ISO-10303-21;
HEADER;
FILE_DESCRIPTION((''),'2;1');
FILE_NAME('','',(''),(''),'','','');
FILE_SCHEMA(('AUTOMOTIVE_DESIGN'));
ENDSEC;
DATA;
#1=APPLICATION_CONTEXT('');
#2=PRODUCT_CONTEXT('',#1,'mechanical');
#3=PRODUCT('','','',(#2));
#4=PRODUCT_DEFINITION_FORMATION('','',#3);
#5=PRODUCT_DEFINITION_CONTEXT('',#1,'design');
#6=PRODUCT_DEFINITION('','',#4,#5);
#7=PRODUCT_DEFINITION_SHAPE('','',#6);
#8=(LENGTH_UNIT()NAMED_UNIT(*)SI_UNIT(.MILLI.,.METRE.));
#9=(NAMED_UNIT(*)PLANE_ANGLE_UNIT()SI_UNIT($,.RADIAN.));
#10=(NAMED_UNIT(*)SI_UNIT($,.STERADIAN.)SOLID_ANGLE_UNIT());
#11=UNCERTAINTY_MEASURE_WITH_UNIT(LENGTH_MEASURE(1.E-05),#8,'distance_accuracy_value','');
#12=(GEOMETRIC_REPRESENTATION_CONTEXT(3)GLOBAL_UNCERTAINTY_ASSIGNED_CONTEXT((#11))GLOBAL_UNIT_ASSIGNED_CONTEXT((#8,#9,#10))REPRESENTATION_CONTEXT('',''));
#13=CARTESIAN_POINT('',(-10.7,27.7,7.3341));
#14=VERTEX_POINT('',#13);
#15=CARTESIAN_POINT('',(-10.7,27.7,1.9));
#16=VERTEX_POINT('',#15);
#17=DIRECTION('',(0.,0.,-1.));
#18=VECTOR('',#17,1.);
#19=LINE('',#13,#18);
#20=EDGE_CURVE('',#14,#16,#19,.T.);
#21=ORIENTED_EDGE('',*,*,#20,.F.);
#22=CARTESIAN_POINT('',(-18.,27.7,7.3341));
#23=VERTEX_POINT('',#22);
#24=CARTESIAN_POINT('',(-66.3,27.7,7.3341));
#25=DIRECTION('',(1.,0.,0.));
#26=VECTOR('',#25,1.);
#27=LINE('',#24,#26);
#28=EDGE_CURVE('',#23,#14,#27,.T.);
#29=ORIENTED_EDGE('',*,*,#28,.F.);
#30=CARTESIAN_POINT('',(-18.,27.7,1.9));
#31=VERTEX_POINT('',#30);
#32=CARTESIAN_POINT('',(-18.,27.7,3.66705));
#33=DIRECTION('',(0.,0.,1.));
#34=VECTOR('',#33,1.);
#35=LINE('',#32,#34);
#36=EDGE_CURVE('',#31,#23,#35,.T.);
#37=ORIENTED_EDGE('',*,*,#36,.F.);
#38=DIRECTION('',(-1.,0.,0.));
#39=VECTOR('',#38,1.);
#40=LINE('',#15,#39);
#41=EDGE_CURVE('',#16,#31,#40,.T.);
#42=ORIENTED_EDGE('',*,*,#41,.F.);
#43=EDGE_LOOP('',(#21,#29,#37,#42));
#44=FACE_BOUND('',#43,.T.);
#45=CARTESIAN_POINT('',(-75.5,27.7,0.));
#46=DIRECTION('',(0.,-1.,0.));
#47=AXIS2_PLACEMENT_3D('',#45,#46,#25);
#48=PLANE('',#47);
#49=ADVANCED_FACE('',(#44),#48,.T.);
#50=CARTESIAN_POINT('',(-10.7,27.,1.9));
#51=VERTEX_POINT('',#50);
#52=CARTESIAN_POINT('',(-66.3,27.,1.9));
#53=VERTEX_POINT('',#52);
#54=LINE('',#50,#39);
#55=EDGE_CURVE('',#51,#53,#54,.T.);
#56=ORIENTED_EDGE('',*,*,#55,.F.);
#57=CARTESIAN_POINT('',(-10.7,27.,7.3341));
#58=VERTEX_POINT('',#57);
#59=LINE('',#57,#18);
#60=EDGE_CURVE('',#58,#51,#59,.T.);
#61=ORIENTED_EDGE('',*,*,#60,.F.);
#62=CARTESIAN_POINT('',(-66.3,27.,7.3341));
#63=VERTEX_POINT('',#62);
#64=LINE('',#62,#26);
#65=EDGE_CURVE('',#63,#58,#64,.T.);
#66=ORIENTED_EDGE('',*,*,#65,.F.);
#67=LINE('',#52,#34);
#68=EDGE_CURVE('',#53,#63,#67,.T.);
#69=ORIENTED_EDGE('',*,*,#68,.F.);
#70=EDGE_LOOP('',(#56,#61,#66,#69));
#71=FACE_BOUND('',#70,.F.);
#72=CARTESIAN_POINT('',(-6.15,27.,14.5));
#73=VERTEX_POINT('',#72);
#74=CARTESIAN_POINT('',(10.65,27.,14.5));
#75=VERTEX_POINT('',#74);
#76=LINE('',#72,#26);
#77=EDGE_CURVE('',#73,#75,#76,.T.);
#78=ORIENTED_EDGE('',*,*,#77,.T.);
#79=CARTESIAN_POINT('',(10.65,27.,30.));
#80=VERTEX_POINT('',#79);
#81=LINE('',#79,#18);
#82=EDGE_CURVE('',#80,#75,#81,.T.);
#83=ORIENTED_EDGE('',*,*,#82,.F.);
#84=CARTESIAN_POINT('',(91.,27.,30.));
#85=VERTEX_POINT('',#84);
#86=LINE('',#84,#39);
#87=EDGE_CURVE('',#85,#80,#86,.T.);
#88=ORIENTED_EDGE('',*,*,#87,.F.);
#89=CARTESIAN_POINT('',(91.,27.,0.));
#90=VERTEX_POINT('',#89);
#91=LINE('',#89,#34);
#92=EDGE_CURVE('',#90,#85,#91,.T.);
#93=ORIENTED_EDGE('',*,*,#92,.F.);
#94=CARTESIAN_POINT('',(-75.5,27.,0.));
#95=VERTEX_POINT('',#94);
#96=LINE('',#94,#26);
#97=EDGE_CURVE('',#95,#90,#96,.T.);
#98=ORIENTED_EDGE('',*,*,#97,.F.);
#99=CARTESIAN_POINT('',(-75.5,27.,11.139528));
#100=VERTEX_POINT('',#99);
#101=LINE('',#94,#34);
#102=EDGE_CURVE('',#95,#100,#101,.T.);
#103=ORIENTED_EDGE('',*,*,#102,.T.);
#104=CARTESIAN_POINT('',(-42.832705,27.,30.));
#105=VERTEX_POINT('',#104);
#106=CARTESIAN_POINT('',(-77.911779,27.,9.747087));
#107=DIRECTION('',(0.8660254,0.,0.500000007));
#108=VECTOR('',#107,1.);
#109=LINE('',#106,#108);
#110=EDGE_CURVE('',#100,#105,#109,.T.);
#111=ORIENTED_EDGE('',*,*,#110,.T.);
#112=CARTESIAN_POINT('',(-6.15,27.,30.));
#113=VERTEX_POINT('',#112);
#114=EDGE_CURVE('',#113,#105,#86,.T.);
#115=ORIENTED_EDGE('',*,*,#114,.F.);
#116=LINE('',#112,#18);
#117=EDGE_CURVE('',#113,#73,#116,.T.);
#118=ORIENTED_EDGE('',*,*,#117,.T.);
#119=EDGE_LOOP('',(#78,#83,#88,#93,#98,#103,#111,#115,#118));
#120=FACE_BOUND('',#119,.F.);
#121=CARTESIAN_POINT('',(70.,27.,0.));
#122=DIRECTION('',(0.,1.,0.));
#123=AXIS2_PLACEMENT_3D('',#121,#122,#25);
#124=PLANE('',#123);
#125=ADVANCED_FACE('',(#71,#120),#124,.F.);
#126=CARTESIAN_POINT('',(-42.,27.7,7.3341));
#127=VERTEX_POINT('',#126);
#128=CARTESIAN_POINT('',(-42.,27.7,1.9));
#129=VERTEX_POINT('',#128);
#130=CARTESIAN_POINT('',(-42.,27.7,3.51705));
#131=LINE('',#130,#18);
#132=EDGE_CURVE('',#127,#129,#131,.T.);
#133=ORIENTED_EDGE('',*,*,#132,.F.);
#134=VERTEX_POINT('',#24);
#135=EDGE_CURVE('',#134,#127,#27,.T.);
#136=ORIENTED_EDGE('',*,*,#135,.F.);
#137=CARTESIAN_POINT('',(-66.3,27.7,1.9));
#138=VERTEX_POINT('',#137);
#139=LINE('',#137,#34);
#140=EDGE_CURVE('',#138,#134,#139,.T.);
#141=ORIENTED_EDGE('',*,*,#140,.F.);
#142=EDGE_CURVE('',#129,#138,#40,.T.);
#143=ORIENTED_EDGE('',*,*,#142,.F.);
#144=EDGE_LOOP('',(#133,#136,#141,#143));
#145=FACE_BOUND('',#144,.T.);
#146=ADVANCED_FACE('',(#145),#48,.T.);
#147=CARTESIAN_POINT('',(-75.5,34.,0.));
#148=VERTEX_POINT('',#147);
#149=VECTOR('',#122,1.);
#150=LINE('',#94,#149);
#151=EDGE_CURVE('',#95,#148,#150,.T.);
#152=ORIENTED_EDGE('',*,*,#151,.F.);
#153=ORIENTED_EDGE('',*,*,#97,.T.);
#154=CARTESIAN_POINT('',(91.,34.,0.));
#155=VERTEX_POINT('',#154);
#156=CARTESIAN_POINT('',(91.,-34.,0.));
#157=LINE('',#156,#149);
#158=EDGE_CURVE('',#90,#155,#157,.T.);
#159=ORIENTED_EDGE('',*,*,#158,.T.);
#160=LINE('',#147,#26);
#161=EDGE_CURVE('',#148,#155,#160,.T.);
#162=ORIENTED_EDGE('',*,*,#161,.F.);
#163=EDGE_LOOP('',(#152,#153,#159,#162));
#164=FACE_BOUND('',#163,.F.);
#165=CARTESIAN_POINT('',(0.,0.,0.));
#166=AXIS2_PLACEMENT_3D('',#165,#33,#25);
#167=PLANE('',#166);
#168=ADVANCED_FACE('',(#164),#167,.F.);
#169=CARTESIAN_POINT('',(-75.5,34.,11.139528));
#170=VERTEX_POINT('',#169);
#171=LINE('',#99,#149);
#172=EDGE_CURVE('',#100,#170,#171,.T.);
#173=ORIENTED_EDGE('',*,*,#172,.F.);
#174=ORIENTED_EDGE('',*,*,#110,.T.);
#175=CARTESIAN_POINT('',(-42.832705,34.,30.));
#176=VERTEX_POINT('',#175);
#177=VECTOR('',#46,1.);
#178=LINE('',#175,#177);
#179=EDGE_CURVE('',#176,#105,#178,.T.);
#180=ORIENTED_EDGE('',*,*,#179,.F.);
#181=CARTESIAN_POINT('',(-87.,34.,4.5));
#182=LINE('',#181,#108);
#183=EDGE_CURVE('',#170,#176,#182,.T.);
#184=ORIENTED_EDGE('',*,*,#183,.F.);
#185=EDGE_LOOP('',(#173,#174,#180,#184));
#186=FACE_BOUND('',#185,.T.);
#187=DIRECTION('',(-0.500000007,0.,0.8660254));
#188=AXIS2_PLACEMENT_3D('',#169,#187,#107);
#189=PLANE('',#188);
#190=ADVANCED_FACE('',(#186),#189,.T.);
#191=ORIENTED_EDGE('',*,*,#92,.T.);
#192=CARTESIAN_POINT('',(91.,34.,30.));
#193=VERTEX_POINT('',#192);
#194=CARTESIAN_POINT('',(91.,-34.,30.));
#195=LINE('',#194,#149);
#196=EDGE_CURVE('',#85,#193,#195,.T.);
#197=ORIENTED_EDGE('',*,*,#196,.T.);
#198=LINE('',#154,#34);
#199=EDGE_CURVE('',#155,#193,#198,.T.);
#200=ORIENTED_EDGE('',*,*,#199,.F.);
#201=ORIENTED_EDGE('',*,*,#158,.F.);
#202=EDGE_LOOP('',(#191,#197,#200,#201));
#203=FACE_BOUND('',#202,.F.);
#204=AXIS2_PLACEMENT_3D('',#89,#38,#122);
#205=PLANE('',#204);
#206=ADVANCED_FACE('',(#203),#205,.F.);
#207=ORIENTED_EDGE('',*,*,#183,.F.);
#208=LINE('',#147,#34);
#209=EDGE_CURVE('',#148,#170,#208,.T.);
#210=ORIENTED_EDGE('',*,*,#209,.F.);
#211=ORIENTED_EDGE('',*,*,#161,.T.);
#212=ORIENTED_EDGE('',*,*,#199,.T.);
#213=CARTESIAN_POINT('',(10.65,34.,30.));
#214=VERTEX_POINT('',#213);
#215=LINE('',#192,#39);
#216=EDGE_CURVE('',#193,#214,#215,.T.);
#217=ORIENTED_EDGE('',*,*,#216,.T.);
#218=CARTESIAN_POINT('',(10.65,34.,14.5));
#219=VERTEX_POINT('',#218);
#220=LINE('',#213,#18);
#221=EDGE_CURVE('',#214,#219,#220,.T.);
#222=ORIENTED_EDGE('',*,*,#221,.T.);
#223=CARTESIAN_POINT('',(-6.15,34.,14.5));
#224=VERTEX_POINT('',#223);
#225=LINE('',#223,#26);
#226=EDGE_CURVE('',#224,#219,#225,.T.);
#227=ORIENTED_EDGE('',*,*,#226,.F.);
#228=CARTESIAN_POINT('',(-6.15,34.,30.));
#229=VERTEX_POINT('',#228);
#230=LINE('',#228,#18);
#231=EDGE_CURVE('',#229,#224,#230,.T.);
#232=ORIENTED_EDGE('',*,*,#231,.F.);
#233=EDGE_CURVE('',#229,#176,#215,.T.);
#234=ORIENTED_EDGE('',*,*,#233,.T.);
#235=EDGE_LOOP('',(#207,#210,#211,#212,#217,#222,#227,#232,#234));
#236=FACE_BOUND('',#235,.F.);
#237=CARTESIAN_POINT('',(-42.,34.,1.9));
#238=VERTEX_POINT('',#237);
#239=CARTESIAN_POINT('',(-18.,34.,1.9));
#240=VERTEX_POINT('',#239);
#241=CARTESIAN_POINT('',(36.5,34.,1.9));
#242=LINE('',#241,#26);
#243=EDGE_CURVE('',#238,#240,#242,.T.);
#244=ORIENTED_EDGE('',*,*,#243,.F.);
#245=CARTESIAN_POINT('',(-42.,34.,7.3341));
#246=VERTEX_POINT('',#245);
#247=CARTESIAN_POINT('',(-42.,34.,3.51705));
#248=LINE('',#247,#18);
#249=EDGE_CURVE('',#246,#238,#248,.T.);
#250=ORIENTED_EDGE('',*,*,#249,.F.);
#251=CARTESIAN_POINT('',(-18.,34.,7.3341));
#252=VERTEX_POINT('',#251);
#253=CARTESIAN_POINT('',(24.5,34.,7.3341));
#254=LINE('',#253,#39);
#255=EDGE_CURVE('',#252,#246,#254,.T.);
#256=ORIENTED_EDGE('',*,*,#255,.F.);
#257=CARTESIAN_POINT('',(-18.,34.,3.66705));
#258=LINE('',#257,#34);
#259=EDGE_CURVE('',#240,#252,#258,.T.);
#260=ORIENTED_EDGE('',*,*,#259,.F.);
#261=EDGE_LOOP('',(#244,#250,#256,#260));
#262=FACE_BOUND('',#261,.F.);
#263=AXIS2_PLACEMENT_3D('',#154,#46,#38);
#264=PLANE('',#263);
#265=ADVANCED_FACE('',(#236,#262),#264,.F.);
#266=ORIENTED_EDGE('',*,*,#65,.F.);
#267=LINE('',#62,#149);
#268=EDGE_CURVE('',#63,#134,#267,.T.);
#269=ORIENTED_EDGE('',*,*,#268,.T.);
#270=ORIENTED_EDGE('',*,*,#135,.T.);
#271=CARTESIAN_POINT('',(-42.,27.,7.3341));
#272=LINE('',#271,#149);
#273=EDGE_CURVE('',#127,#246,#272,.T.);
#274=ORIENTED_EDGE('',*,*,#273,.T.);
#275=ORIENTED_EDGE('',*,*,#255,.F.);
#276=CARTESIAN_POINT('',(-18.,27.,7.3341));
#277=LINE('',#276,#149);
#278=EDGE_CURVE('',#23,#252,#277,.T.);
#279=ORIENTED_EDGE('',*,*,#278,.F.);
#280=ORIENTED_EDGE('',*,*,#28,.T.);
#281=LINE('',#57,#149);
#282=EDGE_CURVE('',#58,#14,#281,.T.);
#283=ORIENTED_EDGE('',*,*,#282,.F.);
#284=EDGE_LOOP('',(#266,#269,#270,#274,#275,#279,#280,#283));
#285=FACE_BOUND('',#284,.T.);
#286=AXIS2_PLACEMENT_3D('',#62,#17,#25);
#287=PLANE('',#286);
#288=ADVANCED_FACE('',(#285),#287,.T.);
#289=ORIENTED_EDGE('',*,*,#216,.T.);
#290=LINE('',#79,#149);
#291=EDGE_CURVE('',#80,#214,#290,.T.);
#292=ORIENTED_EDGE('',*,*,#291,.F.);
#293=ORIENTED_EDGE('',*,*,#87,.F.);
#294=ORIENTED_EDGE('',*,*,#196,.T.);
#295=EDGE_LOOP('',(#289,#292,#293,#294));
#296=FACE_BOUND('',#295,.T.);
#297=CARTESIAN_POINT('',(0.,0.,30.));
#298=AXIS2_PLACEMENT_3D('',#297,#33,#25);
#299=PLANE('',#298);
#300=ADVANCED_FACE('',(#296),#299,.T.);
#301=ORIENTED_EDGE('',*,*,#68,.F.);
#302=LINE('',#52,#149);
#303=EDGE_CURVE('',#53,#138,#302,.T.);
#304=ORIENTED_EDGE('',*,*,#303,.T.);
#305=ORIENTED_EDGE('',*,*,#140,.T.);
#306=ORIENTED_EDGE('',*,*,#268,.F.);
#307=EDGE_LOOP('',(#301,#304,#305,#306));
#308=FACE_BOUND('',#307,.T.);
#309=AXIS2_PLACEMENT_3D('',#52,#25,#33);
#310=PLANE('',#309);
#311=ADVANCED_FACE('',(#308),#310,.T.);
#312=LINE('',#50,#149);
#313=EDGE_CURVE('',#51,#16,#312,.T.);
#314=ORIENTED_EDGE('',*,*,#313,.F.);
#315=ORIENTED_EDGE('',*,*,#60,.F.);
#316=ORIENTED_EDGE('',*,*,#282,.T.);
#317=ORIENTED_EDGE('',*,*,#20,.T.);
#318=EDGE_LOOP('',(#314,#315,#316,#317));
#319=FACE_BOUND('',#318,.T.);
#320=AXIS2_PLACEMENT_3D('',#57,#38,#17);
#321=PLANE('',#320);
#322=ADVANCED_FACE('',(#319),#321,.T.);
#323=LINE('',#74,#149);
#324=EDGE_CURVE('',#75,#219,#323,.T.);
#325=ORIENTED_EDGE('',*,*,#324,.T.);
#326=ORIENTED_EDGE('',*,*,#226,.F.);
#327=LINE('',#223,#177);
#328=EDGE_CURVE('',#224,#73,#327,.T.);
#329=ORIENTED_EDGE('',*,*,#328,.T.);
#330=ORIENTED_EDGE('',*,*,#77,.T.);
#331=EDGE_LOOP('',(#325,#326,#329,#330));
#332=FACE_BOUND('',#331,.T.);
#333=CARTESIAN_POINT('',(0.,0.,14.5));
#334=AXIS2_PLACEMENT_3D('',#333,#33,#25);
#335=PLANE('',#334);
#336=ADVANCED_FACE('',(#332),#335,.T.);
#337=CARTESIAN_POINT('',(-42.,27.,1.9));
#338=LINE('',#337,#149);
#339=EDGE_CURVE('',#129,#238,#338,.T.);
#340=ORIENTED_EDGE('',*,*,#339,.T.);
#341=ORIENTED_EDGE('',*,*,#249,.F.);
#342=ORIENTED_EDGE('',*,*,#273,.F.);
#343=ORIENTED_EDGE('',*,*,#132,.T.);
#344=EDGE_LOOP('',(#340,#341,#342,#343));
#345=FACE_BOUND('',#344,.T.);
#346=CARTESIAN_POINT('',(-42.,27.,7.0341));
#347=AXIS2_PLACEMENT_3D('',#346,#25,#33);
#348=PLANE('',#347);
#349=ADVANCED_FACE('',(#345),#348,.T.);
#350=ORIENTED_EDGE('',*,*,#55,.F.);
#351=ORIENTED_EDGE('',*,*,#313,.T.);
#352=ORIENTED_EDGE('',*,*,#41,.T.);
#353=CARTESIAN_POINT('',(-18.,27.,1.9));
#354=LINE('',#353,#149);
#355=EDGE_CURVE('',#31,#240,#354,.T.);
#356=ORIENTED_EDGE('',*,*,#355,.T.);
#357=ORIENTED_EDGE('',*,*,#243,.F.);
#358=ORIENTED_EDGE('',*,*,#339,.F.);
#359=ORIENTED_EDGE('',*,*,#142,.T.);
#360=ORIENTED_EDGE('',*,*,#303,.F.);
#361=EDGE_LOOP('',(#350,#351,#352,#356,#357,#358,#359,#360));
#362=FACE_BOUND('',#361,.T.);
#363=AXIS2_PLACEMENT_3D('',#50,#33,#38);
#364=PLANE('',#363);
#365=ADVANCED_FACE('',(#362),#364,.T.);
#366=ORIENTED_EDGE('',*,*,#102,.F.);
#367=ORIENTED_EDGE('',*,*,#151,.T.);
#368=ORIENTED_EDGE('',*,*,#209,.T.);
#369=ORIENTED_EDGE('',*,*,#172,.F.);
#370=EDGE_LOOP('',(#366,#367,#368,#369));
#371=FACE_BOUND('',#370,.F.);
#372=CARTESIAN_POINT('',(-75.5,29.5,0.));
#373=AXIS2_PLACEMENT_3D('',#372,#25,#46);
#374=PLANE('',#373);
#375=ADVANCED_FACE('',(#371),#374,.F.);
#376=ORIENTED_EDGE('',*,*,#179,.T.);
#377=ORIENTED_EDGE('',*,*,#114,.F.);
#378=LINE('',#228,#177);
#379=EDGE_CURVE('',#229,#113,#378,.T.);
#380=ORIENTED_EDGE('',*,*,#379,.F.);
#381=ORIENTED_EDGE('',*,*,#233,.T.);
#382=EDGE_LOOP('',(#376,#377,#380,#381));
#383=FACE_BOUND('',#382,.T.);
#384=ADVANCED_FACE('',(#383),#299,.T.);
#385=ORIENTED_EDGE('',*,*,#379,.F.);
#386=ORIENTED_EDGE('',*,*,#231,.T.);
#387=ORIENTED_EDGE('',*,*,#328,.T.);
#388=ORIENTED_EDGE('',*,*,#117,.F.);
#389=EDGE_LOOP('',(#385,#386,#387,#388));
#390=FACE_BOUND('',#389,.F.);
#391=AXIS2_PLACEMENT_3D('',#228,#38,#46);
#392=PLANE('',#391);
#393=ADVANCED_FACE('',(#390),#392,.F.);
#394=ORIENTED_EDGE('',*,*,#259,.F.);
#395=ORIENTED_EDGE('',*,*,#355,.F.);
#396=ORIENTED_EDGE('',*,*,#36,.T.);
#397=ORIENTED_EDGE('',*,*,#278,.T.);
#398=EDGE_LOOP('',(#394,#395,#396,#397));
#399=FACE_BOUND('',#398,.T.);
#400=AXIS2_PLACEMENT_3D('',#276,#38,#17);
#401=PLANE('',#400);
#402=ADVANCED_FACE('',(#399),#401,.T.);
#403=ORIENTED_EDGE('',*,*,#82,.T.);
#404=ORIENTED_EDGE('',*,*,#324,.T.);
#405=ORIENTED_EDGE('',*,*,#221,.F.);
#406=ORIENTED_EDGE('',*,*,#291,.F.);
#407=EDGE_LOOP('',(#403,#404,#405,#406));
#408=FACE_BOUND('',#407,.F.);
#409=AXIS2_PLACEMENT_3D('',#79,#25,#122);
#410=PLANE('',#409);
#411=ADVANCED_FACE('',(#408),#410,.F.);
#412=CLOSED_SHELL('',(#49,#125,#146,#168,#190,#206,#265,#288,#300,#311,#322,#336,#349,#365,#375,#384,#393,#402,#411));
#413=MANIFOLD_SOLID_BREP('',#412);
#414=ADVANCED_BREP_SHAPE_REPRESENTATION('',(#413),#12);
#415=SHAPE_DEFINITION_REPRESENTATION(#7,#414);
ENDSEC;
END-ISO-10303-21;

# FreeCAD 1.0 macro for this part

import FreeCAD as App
import Part
import Sketcher
from FreeCAD import Vector
Q = App.Units.Quantity

doc = App.newDocument("Part")
body = doc.addObject("PartDesign::Body", "Body")

# Sketch on XY plane
sketch1 = doc.addObject("Sketcher::SketchObject", "Sketch")
body.addObject(sketch1)
sketch1.AttachmentSupport = (doc.XY_Plane, [""])
sketch1.MapMode = "FlatFace"
sketch1.addGeometry([
    Part.LineSegment(Vector(-75.5, 27, 0), Vector(91, 27, 0)),
    Part.LineSegment(Vector(91, 27, 0), Vector(91, 34, 0)),
    Part.LineSegment(Vector(91, 34, 0), Vector(-75.5, 34, 0)),
    Part.LineSegment(Vector(-75.5, 34, 0), Vector(-75.5, 27, 0)),
], False)
sketch1.addConstraint([
    Sketcher.Constraint("Coincident", 0, 2, 1, 1),
    Sketcher.Constraint("Coincident", 1, 2, 2, 1),
    Sketcher.Constraint("Coincident", 2, 2, 3, 1),
    Sketcher.Constraint("Coincident", 3, 2, 0, 1),
    Sketcher.Constraint("Horizontal", 0),
    Sketcher.Constraint("Vertical", 1),
    Sketcher.Constraint("Horizontal", 2),
    Sketcher.Constraint("Vertical", 3),
    Sketcher.Constraint("DistanceY", 1, 1, 1, 2, 7.0),
    Sketcher.Constraint("DistanceX", 0, 1, 0, 2, 166.5),
    Sketcher.Constraint("DistanceX", -1, 1, 0, 2, 91.0),
    Sketcher.Constraint("DistanceY", -1, 1, 0, 2, 27.0),
])
pad1 = doc.addObject("PartDesign::Pad", "Pad")
body.addObject(pad1)
pad1.Profile = sketch1
pad1.Length = 30

# Sketch on XZ plane
sketch2 = doc.addObject("Sketcher::SketchObject", "Sketch001")
body.addObject(sketch2)
sketch2.AttachmentSupport = (doc.XZ_Plane, [""])
sketch2.MapMode = "FlatFace"
sketch2.AttachmentOffset = App.Placement(Vector(0, 0, -34), App.Rotation())
sketch2.addGeometry([
    Part.LineSegment(Vector(-42.832705, 30, 0), Vector(-75.5, 11.139528, 0)),
    Part.LineSegment(Vector(-75.5, 11.139528, 0), Vector(-75.5, 30, 0)),
    Part.LineSegment(Vector(-75.5, 30, 0), Vector(-42.832705, 30, 0)),
], False)
sketch2.addConstraint([
    Sketcher.Constraint("Coincident", 0, 2, 1, 1),
    Sketcher.Constraint("Coincident", 1, 2, 2, 1),
    Sketcher.Constraint("Coincident", 2, 2, 0, 1),
    Sketcher.Constraint("Vertical", 1),
    Sketcher.Constraint("Horizontal", 2),
    Sketcher.Constraint("DistanceY", -1, 1, 1, 2, 30.0),
    Sketcher.Constraint("Angle", 0, Q("-150 deg")),
    Sketcher.Constraint("DistanceX", 0, 2, -1, 1, 75.5),
    Sketcher.Constraint("Distance", 0, 37.721),
])
pocket1 = doc.addObject("PartDesign::Pocket", "Pocket")
body.addObject(pocket1)
pocket1.Profile = sketch2
pocket1.Length = 30
pocket1.Reversed = True

# Sketch on XZ plane
sketch3 = doc.addObject("Sketcher::SketchObject", "Sketch002")
body.addObject(sketch3)
sketch3.AttachmentSupport = (doc.XZ_Plane, [""])
sketch3.MapMode = "FlatFace"
sketch3.AttachmentOffset = App.Placement(Vector(0, 0, -27), App.Rotation())
sketch3.addGeometry([
    Part.LineSegment(Vector(-10.7, 7.3341, 0), Vector(-66.3, 7.3341, 0)),
    Part.LineSegment(Vector(-66.3, 7.3341, 0), Vector(-66.3, 1.9, 0)),
    Part.LineSegment(Vector(-66.3, 1.9, 0), Vector(-10.7, 1.9, 0)),
    Part.LineSegment(Vector(-10.7, 1.9, 0), Vector(-10.7, 7.3341, 0)),
], False)
sketch3.addConstraint([
    Sketcher.Constraint("Coincident", 0, 2, 1, 1),
    Sketcher.Constraint("Coincident", 1, 2, 2, 1),
    Sketcher.Constraint("Coincident", 2, 2, 3, 1),
    Sketcher.Constraint("Coincident", 3, 2, 0, 1),
    Sketcher.Constraint("Horizontal", 0),
    Sketcher.Constraint("Vertical", 1),
    Sketcher.Constraint("Horizontal", 2),
    Sketcher.Constraint("Vertical", 3),
    Sketcher.Constraint("DistanceX", 0, 2, 0, 1, 55.6),
    Sketcher.Constraint("DistanceX", 0, 2, -1, 1, 66.3),
    Sketcher.Constraint("DistanceY", -1, 1, 1, 2, 1.9),
    Sketcher.Constraint("DistanceY", 1, 2, 1, 1, 5.434),
])
pocket2 = doc.addObject("PartDesign::Pocket", "Pocket001")
body.addObject(pocket2)
pocket2.Profile = sketch3
pocket2.Length = 0.7

# Sketch on XZ plane
sketch4 = doc.addObject("Sketcher::SketchObject", "Sketch003")
body.addObject(sketch4)
sketch4.AttachmentSupport = (doc.XZ_Plane, [""])
sketch4.MapMode = "FlatFace"
sketch4.AttachmentOffset = App.Placement(Vector(0, 0, -27), App.Rotation())
sketch4.addGeometry([
    Part.LineSegment(Vector(-42, 7.3341, 0), Vector(-42, 1.9, 0)),
    Part.LineSegment(Vector(-42, 1.9, 0), Vector(-18, 1.9, 0)),
    Part.LineSegment(Vector(-18, 1.9, 0), Vector(-18, 7.3341, 0)),
    Part.LineSegment(Vector(-18, 7.3341, 0), Vector(-42, 7.3341, 0)),
], False)
sketch4.addConstraint([
    Sketcher.Constraint("Coincident", 0, 2, 1, 1),
    Sketcher.Constraint("Coincident", 1, 2, 2, 1),
    Sketcher.Constraint("Coincident", 2, 2, 3, 1),
    Sketcher.Constraint("Coincident", 3, 2, 0, 1),
    Sketcher.Constraint("Vertical", 0),
    Sketcher.Constraint("Horizontal", 1),
    Sketcher.Constraint("Vertical", 2),
    Sketcher.Constraint("Horizontal", 3),
    Sketcher.Constraint("DistanceX", 1, 1, 1, 2, 24.0),
    Sketcher.Constraint("DistanceX", 0, 2, -1, 1, 42.0),
    Sketcher.Constraint("DistanceY", -1, 1, 0, 2, 1.9),
    Sketcher.Constraint("DistanceY", 0, 2, 0, 1, 5.434),
])
pocket3 = doc.addObject("PartDesign::Pocket", "Pocket002")
body.addObject(pocket3)
pocket3.Profile = sketch4
pocket3.Length = 7

# Sketch on XY plane
sketch5 = doc.addObject("Sketcher::SketchObject", "Sketch004")
body.addObject(sketch5)
sketch5.AttachmentSupport = (doc.XY_Plane, [""])
sketch5.MapMode = "FlatFace"
sketch5.AttachmentOffset = App.Placement(Vector(0, 0, 30), App.Rotation())
sketch5.addGeometry([
    Part.LineSegment(Vector(10.65, 27, 0), Vector(10.65, 34, 0)),
    Part.LineSegment(Vector(10.65, 34, 0), Vector(-6.15, 34, 0)),
    Part.LineSegment(Vector(-6.15, 34, 0), Vector(-6.15, 27, 0)),
    Part.LineSegment(Vector(-6.15, 27, 0), Vector(10.65, 27, 0)),
], False)
sketch5.addConstraint([
    Sketcher.Constraint("Coincident", 0, 2, 1, 1),
    Sketcher.Constraint("Coincident", 1, 2, 2, 1),
    Sketcher.Constraint("Coincident", 2, 2, 3, 1),
    Sketcher.Constraint("Coincident", 3, 2, 0, 1),
    Sketcher.Constraint("Vertical", 0),
    Sketcher.Constraint("Horizontal", 1),
    Sketcher.Constraint("Vertical", 2),
    Sketcher.Constraint("Horizontal", 3),
    Sketcher.Constraint("DistanceY", 0, 1, 0, 2, 7.0),
    Sketcher.Constraint("DistanceX", 1, 2, 1, 1, 16.8),
    Sketcher.Constraint("DistanceY", -1, 1, 0, 2, 34.0),
    Sketcher.Constraint("DistanceX", -1, 1, 0, 2, 10.65),
])
pocket4 = doc.addObject("PartDesign::Pocket", "Pocket003")
body.addObject(pocket4)
pocket4.Profile = sketch5
pocket4.Length = 15.5

doc.recompute()
